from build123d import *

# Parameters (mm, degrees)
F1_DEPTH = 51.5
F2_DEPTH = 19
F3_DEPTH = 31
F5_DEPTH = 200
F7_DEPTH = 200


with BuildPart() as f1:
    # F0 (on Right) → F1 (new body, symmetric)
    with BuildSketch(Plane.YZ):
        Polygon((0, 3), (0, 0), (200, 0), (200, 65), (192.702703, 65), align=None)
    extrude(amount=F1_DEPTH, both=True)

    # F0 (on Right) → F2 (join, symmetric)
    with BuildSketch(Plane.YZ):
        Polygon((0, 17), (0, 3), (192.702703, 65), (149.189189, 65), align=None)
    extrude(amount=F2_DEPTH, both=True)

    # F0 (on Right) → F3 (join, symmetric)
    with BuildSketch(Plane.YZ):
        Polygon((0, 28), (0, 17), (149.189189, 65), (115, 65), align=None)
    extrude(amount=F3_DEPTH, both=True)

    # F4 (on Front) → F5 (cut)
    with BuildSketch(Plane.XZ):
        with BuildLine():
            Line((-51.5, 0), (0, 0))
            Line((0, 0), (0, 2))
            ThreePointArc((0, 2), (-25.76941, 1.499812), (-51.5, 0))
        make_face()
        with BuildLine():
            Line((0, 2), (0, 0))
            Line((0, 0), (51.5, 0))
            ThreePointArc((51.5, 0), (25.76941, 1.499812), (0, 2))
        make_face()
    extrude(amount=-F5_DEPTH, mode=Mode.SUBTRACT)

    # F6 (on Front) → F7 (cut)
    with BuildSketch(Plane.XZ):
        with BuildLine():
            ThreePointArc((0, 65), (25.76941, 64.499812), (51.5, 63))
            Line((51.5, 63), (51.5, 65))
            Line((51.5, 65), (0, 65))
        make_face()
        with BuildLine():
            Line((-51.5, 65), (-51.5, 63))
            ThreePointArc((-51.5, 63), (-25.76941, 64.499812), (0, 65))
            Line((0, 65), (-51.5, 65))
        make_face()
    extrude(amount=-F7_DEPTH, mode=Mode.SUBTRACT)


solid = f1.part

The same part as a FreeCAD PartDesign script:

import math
import FreeCAD as App
import Part
import Sketcher
from FreeCAD import Vector


def add_polygon(sketch, points):
    """Adds a closed chain of lines whose ends are joined by coincident constraints."""
    first, n = sketch.GeometryCount, len(points)
    for a, b in zip(points, points[1:] + points[:1]):
        sketch.addGeometry(Part.LineSegment(App.Vector(*a, 0), App.Vector(*b, 0)), False)
    for i in range(n):
        sketch.addConstraint(Sketcher.Constraint("Coincident", first + i, 2, first + (i + 1) % n, 1))

doc = App.newDocument("Part")
params = doc.addObject("Spreadsheet::Sheet", "Params")
for row, (alias, value) in enumerate([
    ("sketch1_width", "200 mm"),
    ("sketch1_height", "3 mm"),
    ("sketch1_height2", "65 mm"),
    ("pad1_length", "103 mm"),
    ("sketch2_height", "14 mm"),
    ("pad2_length", "38 mm"),
    ("sketch3_height", "11 mm"),
    ("pad3_length", "62 mm"),
    ("sketch4_width", "103 mm"),
    ("pocket1_length", "200 mm"),
    ("sketch5_height", "2 mm"),
    ("sketch5_height2", "2 mm"),
    ("sketch5_width", "51.5 mm"),
    ("sketch5_width2", "51.5 mm"),
    ("pocket2_length", "200 mm"),
], start=1):
    params.set(f"A{row}", alias)
    params.set(f"B{row}", "=" + value)
    params.setAlias(f"B{row}", alias)

body = doc.addObject("PartDesign::Body", "Body")

# Sketch on YZ plane
sketch1 = doc.addObject("Sketcher::SketchObject", "Sketch")
body.addObject(sketch1)
sketch1.AttachmentSupport = (doc.YZ_Plane, [""])
sketch1.MapMode = "FlatFace"
add_polygon(sketch1, [(0, 3), (0, 0), (200, 0), (200, 65), (192.7, 65)])  # lines 0-4
sketch1.addConstraint([
    Sketcher.Constraint("Vertical", 0),
    Sketcher.Constraint("Horizontal", 1),
    Sketcher.Constraint("Vertical", 2),
    Sketcher.Constraint("Horizontal", 3),
    Sketcher.Constraint("Coincident", 0, 2, -1, 1),
    Sketcher.Constraint("DistanceX", 1, 1, 1, 2, 200.0),
    Sketcher.Constraint("DistanceY", 0, 2, 0, 1, 3.0),
    Sketcher.Constraint("DistanceY", 2, 1, 2, 2, 65.0),
    Sketcher.Constraint("DistanceX", 3, 2, 3, 1, 7.297297),
])
sketch1.setExpression("Constraints[10]", "Params.sketch1_width")
sketch1.setExpression("Constraints[11]", "Params.sketch1_height")
sketch1.setExpression("Constraints[12]", "Params.sketch1_height2")
pad1 = doc.addObject("PartDesign::Pad", "Pad")
body.addObject(pad1)
pad1.Profile = sketch1
pad1.setExpression("Length", "Params.pad1_length")
pad1.Midplane = True

# Sketch on YZ plane
sketch2 = doc.addObject("Sketcher::SketchObject", "Sketch001")
body.addObject(sketch2)
sketch2.AttachmentSupport = (doc.YZ_Plane, [""])
sketch2.MapMode = "FlatFace"
add_polygon(sketch2, [(0, 17), (0, 3), (193, 65), (149, 65)])  # lines 0-3
sketch2.addConstraint([
    Sketcher.Constraint("Vertical", 0),
    Sketcher.Constraint("Horizontal", 2),
    Sketcher.Constraint("PointOnObject", 0, 2, -2),
    Sketcher.Constraint("Parallel", 1, 3),
    Sketcher.Constraint("DistanceY", 0, 2, 0, 1, 14.0),
    Sketcher.Constraint("DistanceY", -1, 1, 0, 2, 3.0),
    Sketcher.Constraint("DistanceY", -1, 1, 1, 2, 65.0),
    Sketcher.Constraint("DistanceX", 2, 2, 2, 1, 43.513514),
])
sketch2.setExpression("Constraints[8]", "Params.sketch2_height")
pad2 = doc.addObject("PartDesign::Pad", "Pad001")
body.addObject(pad2)
pad2.Profile = sketch2
pad2.setExpression("Length", "Params.pad2_length")
pad2.Midplane = True

# Sketch on YZ plane
sketch3 = doc.addObject("Sketcher::SketchObject", "Sketch002")
body.addObject(sketch3)
sketch3.AttachmentSupport = (doc.YZ_Plane, [""])
sketch3.MapMode = "FlatFace"
add_polygon(sketch3, [(0, 28), (0, 17), (149, 65), (115, 65)])  # lines 0-3
sketch3.addConstraint([
    Sketcher.Constraint("Vertical", 0),
    Sketcher.Constraint("Horizontal", 2),
    Sketcher.Constraint("PointOnObject", 0, 2, -2),
    Sketcher.Constraint("Parallel", 1, 3),
    Sketcher.Constraint("DistanceY", 0, 2, 0, 1, 11.0),
    Sketcher.Constraint("DistanceY", -1, 1, 0, 2, 17.0),
    Sketcher.Constraint("DistanceY", -1, 1, 1, 2, 65.0),
    Sketcher.Constraint("DistanceX", -1, 1, 2, 2, 115.0),
])
sketch3.setExpression("Constraints[8]", "Params.sketch3_height")
pad3 = doc.addObject("PartDesign::Pad", "Pad002")
body.addObject(pad3)
pad3.Profile = sketch3
pad3.setExpression("Length", "Params.pad3_length")
pad3.Midplane = True

# Sketch on XZ plane
sketch4 = doc.addObject("Sketcher::SketchObject", "Sketch003")
body.addObject(sketch4)
sketch4.AttachmentSupport = (doc.XZ_Plane, [""])
sketch4.MapMode = "FlatFace"
sketch4.addGeometry([
    Part.LineSegment(Vector(-52, 0, 0), Vector(52, 0, 0)),
    Part.ArcOfCircle(Part.Circle(Vector(0, -662, 0), Vector(0, 0, 1), 664), math.radians(85.55), math.radians(90)),
    Part.ArcOfCircle(Part.Circle(Vector(0, -662, 0), Vector(0, 0, 1), 664), math.radians(90), math.radians(94.45)),
], False)
sketch4.addConstraint([
    Sketcher.Constraint("Coincident", 0, 2, 1, 1),
    Sketcher.Constraint("Coincident", 1, 2, 2, 1),
    Sketcher.Constraint("Coincident", 2, 2, 0, 1),
    Sketcher.Constraint("Horizontal", 0),
    Sketcher.Constraint("Equal", 1, 2),
    Sketcher.Constraint("PointOnObject", 0, 2, -1),
    Sketcher.Constraint("PointOnObject", 1, 2, -2),
    Sketcher.Constraint("DistanceX", 0, 1, 0, 2, 103.0),
    Sketcher.Constraint("DistanceY", -1, 1, 1, 2, 2.0),
    Sketcher.Constraint("DistanceX", -1, 1, 0, 2, 51.5),
    Sketcher.Constraint("Radius", 1, 664.062008),
])
sketch4.setExpression("Constraints[7]", "Params.sketch4_width")
pocket1 = doc.addObject("PartDesign::Pocket", "Pocket")
body.addObject(pocket1)
pocket1.Profile = sketch4
pocket1.setExpression("Length", "Params.pocket1_length")

# Sketch on XZ plane
sketch5 = doc.addObject("Sketcher::SketchObject", "Sketch004")
body.addObject(sketch5)
sketch5.AttachmentSupport = (doc.XZ_Plane, [""])
sketch5.MapMode = "FlatFace"
sketch5.addGeometry([
    Part.ArcOfCircle(Part.Circle(Vector(0.000019, -599.062008, 0), Vector(0, 0, 1), 664.062008), math.radians(85.552076), math.radians(90.000002)),  # 0
    Part.LineSegment(Vector(51.5, 63, 0), Vector(51.5, 65, 0)),  # 1
    Part.LineSegment(Vector(51.5, 65, 0), Vector(0, 65, 0)),  # 2
    Part.LineSegment(Vector(-51.5, 65, 0), Vector(-51.5, 63, 0)),  # 3
    Part.ArcOfCircle(Part.Circle(Vector(-0.000019, -599.062008, 0), Vector(0, 0, 1), 664.062008), math.radians(89.999998), math.radians(94.447924)),  # 4
    Part.LineSegment(Vector(0, 65, 0), Vector(-51.5, 65, 0)),  # 5
], False)
sketch5.addConstraint([
    Sketcher.Constraint("Coincident", 0, 1, 1, 1),
    Sketcher.Constraint("Coincident", 1, 2, 2, 1),
    Sketcher.Constraint("Coincident", 2, 2, 0, 2),
    Sketcher.Constraint("Coincident", 3, 2, 4, 2),
    Sketcher.Constraint("Coincident", 4, 1, 5, 1),
    Sketcher.Constraint("Coincident", 5, 2, 3, 1),
    Sketcher.Constraint("Vertical", 1),
    Sketcher.Constraint("Horizontal", 2),
    Sketcher.Constraint("Vertical", 3),
    Sketcher.Constraint("Horizontal", 5),
    Sketcher.Constraint("Coincident", 4, 1, 2, 2),
    Sketcher.Constraint("PointOnObject", 2, 2, -2),
    Sketcher.Constraint("DistanceY", 1, 1, 1, 2, 2.0),
    Sketcher.Constraint("DistanceY", 3, 2, 3, 1, 2.0),
    Sketcher.Constraint("DistanceX", 2, 2, 2, 1, 51.5),
    Sketcher.Constraint("DistanceX", 5, 2, 5, 1, 51.5),
    Sketcher.Constraint("DistanceY", -1, 1, 0, 1, 63.0),
    Sketcher.Constraint("Radius", 0, 664.062008),
    Sketcher.Constraint("Radius", 4, 664.062008),
])
sketch5.setExpression("Constraints[12]", "Params.sketch5_height")
sketch5.setExpression("Constraints[13]", "Params.sketch5_height2")
sketch5.setExpression("Constraints[14]", "Params.sketch5_width")
sketch5.setExpression("Constraints[15]", "Params.sketch5_width2")
pocket2 = doc.addObject("PartDesign::Pocket", "Pocket001")
body.addObject(pocket2)
pocket2.Profile = sketch5
pocket2.setExpression("Length", "Params.pocket2_length")

doc.recompute()
